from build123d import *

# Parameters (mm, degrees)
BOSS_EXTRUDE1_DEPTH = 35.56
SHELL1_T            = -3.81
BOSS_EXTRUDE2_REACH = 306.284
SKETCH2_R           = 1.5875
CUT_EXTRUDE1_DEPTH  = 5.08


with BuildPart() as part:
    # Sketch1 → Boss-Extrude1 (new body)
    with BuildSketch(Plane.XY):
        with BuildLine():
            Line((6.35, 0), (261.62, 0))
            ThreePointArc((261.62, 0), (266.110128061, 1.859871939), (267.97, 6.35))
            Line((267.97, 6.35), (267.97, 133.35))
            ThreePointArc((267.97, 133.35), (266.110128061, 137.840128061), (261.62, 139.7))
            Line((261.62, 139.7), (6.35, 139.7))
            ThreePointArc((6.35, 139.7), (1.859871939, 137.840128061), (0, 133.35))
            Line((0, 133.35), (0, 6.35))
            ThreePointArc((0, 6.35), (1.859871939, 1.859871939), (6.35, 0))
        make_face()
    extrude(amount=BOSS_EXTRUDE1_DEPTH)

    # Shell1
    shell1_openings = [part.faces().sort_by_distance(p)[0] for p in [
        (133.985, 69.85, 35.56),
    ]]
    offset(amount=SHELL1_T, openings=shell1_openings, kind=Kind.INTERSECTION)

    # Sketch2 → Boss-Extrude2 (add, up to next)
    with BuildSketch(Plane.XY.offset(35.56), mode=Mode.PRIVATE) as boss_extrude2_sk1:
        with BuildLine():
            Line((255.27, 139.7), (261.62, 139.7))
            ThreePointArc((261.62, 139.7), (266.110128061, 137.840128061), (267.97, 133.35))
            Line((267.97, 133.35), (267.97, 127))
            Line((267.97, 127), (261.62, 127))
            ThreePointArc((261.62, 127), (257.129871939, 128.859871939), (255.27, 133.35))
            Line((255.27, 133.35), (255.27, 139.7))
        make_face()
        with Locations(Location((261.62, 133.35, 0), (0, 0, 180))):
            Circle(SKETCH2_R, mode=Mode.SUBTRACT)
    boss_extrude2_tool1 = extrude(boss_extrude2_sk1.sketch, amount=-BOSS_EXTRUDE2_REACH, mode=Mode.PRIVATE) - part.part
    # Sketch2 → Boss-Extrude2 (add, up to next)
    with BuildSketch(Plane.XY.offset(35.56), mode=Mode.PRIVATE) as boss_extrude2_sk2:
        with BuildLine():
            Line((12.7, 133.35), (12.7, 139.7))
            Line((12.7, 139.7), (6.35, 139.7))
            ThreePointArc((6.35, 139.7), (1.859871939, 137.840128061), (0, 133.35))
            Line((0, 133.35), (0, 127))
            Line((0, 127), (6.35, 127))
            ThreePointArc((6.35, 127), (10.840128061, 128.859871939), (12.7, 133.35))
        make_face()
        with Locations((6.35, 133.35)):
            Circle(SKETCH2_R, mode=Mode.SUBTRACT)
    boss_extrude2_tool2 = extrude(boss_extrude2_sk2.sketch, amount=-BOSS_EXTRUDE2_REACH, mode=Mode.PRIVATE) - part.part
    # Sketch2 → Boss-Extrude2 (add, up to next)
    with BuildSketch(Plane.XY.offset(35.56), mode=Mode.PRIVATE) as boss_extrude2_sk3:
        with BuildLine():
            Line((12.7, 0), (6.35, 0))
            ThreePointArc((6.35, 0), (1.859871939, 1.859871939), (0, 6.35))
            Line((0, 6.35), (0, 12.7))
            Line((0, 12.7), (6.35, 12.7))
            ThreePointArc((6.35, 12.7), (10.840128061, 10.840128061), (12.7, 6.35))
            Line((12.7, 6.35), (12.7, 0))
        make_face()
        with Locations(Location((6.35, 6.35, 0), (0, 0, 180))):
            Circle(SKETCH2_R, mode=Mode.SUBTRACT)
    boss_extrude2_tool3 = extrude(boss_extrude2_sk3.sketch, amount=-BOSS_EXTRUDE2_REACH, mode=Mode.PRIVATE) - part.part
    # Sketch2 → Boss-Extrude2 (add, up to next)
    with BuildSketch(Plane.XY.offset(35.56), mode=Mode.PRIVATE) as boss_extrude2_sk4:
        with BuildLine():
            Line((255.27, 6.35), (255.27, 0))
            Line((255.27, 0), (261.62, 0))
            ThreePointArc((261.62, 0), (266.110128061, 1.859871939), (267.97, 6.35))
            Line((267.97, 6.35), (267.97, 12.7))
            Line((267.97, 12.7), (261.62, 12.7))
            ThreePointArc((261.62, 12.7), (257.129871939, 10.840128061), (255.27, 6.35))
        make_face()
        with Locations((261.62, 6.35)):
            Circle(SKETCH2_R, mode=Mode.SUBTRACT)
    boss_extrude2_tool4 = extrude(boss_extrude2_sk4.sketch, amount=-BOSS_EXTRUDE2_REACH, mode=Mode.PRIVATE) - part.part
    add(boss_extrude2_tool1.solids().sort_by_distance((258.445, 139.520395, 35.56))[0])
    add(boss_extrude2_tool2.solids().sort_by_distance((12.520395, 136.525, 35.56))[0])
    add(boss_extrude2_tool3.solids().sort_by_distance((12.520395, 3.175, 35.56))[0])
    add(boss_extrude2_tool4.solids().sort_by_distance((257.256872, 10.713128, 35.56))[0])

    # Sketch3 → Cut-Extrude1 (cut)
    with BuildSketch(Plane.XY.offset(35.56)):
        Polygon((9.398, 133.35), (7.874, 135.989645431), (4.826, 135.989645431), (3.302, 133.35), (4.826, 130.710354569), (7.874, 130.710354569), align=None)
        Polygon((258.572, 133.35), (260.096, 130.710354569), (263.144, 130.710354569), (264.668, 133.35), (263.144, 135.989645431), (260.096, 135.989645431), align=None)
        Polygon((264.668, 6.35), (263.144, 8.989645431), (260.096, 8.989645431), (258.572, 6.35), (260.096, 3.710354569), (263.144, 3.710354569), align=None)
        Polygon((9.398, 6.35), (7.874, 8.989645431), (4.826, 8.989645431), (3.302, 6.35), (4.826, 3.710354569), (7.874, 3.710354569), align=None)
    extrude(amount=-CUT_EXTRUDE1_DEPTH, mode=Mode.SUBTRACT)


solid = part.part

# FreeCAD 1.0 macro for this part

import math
import FreeCAD as App
import Part
import Sketcher

V = App.Vector
Q = App.Units.Quantity


def faces_at(feature, points):
    """Names of the faces that lie closest to the given points."""
    faces = feature.Shape.Faces
    near = lambda p: min(range(len(faces)), key=lambda i: faces[i].distToShape(Part.Vertex(*p))[0])
    return sorted({f"Face{near(p) + 1}" for p in points})

doc = App.newDocument("Part")
body = doc.addObject("PartDesign::Body", "Body")

sketch1 = body.newObject("Sketcher::SketchObject", "Sketch")
sketch1.AttachmentSupport = (doc.getObject("XY_Plane"), [""])
sketch1.MapMode = "FlatFace"
sketch1.addGeometry(Part.LineSegment(V(6, 0, 0), V(262, 0, 0)), False)
sketch1.addGeometry(Part.ArcOfCircle(Part.Circle(V(262, 6, 0), V(0, 0, 1), 6), math.radians(-90), math.radians(0)), False)
sketch1.addGeometry(Part.LineSegment(V(268, 6, 0), V(268, 133, 0)), False)
sketch1.addGeometry(Part.ArcOfCircle(Part.Circle(V(262, 133, 0), V(0, 0, 1), 6), math.radians(0), math.radians(90)), False)
sketch1.addGeometry(Part.LineSegment(V(262, 140, 0), V(6, 140, 0)), False)
sketch1.addGeometry(Part.ArcOfCircle(Part.Circle(V(6, 133, 0), V(0, 0, 1), 6), math.radians(90), math.radians(180)), False)
sketch1.addGeometry(Part.LineSegment(V(0, 133, 0), V(0, 6, 0)), False)
sketch1.addGeometry(Part.ArcOfCircle(Part.Circle(V(6, 6, 0), V(0, 0, 1), 6), math.radians(180), math.radians(270)), False)
sketch1.addConstraint(Sketcher.Constraint("Tangent", 0, 2, 1, 1))
sketch1.addConstraint(Sketcher.Constraint("Tangent", 1, 2, 2, 1))
sketch1.addConstraint(Sketcher.Constraint("Tangent", 2, 2, 3, 1))
sketch1.addConstraint(Sketcher.Constraint("Tangent", 3, 2, 4, 1))
sketch1.addConstraint(Sketcher.Constraint("Tangent", 4, 2, 5, 1))
sketch1.addConstraint(Sketcher.Constraint("Tangent", 5, 2, 6, 1))
sketch1.addConstraint(Sketcher.Constraint("Tangent", 6, 2, 7, 1))
sketch1.addConstraint(Sketcher.Constraint("Tangent", 7, 2, 0, 1))
sketch1.addConstraint(Sketcher.Constraint("Horizontal", 0))
sketch1.addConstraint(Sketcher.Constraint("Vertical", 2))
sketch1.addConstraint(Sketcher.Constraint("Horizontal", 4))
sketch1.addConstraint(Sketcher.Constraint("Vertical", 6))
sketch1.addConstraint(Sketcher.Constraint("Equal", 1, 3))
sketch1.addConstraint(Sketcher.Constraint("Equal", 3, 5))
sketch1.addConstraint(Sketcher.Constraint("Equal", 5, 7))
sketch1.addConstraint(Sketcher.Constraint("PointOnObject", 0, 2, -1))
sketch1.addConstraint(Sketcher.Constraint("PointOnObject", 5, 2, -2))
sketch1.addConstraint(Sketcher.Constraint("DistanceY", 2, 1, 2, 2, Q("5 in")))
sketch1.addConstraint(Sketcher.Constraint("Radius", 1, Q("0.25 in")))
sketch1.addConstraint(Sketcher.Constraint("DistanceX", 0, 1, 0, 2, Q("10.05 in")))
pad1 = body.newObject("PartDesign::Pad", "Pad")
pad1.Profile = sketch1
pad1.Length = Q("1.4 in")
doc.recompute()

thickness = body.newObject("PartDesign::Thickness", "Thickness")
thickness.Base = (pad1, faces_at(pad1, [(133.985, 69.85, 35.56)]))
thickness.Value = Q("0.15 in")
thickness.Reversed = True
thickness.Join = "Intersection"

sketch2 = body.newObject("Sketcher::SketchObject", "Sketch001")
sketch2.AttachmentSupport = (doc.getObject("XY_Plane"), [""])
sketch2.MapMode = "FlatFace"
sketch2.AttachmentOffset = App.Placement(V(0, 0, 1.4 * 25.4), App.Rotation())
sketch2.addGeometry(Part.LineSegment(V(261.62, 139.7, 0), V(255.27, 139.7, 0)), False)
sketch2.addGeometry(Part.LineSegment(V(255.27, 139.7, 0), V(255.27, 133.35, 0)), False)
sketch2.addGeometry(Part.ArcOfCircle(Part.Circle(V(261.62, 133.35, 0), V(0, 0, 1), 6.35), math.radians(180), math.radians(270)), False)
sketch2.addGeometry(Part.LineSegment(V(261.62, 127, 0), V(267.97, 127, 0)), False)
sketch2.addGeometry(Part.LineSegment(V(267.97, 127, 0), V(267.97, 133.35, 0)), False)
sketch2.addGeometry(Part.ArcOfCircle(Part.Circle(V(261.62, 133.35, 0), V(0, 0, 1), 6.35), math.radians(0), math.radians(90)), False)
sketch2.addGeometry(Part.Circle(V(261.62, 133.35, 0), V(0, 0, 1), 1.5875), False)
sketch2.addConstraint(Sketcher.Constraint("Coincident", 0, 2, 1, 1))
sketch2.addConstraint(Sketcher.Constraint("Tangent", 1, 2, 2, 1))
sketch2.addConstraint(Sketcher.Constraint("Tangent", 2, 2, 3, 1))
sketch2.addConstraint(Sketcher.Constraint("Coincident", 3, 2, 4, 1))
sketch2.addConstraint(Sketcher.Constraint("Tangent", 4, 2, 5, 1))
sketch2.addConstraint(Sketcher.Constraint("Tangent", 5, 2, 0, 1))
sketch2.addConstraint(Sketcher.Constraint("Horizontal", 0))
sketch2.addConstraint(Sketcher.Constraint("Vertical", 1))
sketch2.addConstraint(Sketcher.Constraint("Horizontal", 3))
sketch2.addConstraint(Sketcher.Constraint("Vertical", 4))
sketch2.addConstraint(Sketcher.Constraint("Coincident", 5, 3, 2, 3))
sketch2.addConstraint(Sketcher.Constraint("Coincident", 6, 3, 2, 3))
sketch2.addConstraint(Sketcher.Constraint("Equal", 2, 5))
sketch2.addConstraint(Sketcher.Constraint("Radius", 2, Q("0.25 in")))
sketch2.addConstraint(Sketcher.Constraint("Diameter", 6, Q("0.125 in")))
sketch2.addConstraint(Sketcher.Constraint("DistanceY", -1, 1, 2, 2, Q("5 in")))
sketch2.addConstraint(Sketcher.Constraint("DistanceX", -1, 1, 2, 3, Q("10.3 in")))
pad2 = body.newObject("PartDesign::Pad", "Pad001")
pad2.Profile = sketch2
pad2.Type = "UpToFirst"
pad2.Reversed = True

sketch3 = body.newObject("Sketcher::SketchObject", "Sketch002")
sketch3.AttachmentSupport = (doc.getObject("XY_Plane"), [""])
sketch3.MapMode = "FlatFace"
sketch3.AttachmentOffset = App.Placement(V(0, 0, 1.4 * 25.4), App.Rotation())
sketch3.addGeometry(Part.LineSegment(V(12.7, 133.3, 0), V(12.7, 139.7, 0)), False)
sketch3.addGeometry(Part.LineSegment(V(12.7, 139.7, 0), V(6.3, 139.7, 0)), False)
sketch3.addGeometry(Part.ArcOfCircle(Part.Circle(V(6.3, 133.4, 0), V(0, 0, 1), 6.3), math.radians(90), math.radians(180)), False)
sketch3.addGeometry(Part.LineSegment(V(0, 133.3, 0), V(0, 127, 0)), False)
sketch3.addGeometry(Part.LineSegment(V(0, 127, 0), V(6.3, 127, 0)), False)
sketch3.addGeometry(Part.ArcOfCircle(Part.Circle(V(6.4, 133.3, 0), V(0, 0, 1), 6.3), math.radians(-90), math.radians(0)), False)
sketch3.addGeometry(Part.Circle(V(6.3, 133.3, 0), V(0, 0, 1), 1.6), False)
sketch3.addConstraint(Sketcher.Constraint("Coincident", 0, 2, 1, 1))
sketch3.addConstraint(Sketcher.Constraint("Tangent", 1, 2, 2, 1))
sketch3.addConstraint(Sketcher.Constraint("Tangent", 2, 2, 3, 1))
sketch3.addConstraint(Sketcher.Constraint("Coincident", 3, 2, 4, 1))
sketch3.addConstraint(Sketcher.Constraint("Tangent", 4, 2, 5, 1))
sketch3.addConstraint(Sketcher.Constraint("Tangent", 5, 2, 0, 1))
sketch3.addConstraint(Sketcher.Constraint("Vertical", 0))
sketch3.addConstraint(Sketcher.Constraint("Horizontal", 1))
sketch3.addConstraint(Sketcher.Constraint("Vertical", 3))
sketch3.addConstraint(Sketcher.Constraint("Horizontal", 4))
sketch3.addConstraint(Sketcher.Constraint("Coincident", 5, 3, 2, 3))
sketch3.addConstraint(Sketcher.Constraint("Coincident", 6, 3, 2, 3))
sketch3.addConstraint(Sketcher.Constraint("Equal", 2, 5))
sketch3.addConstraint(Sketcher.Constraint("PointOnObject", 2, 2, -2))
sketch3.addConstraint(Sketcher.Constraint("Radius", 2, Q("0.25 in")))
sketch3.addConstraint(Sketcher.Constraint("Diameter", 6, Q("0.125 in")))
sketch3.addConstraint(Sketcher.Constraint("DistanceY", -1, 1, 3, 2, Q("5 in")))
pad3 = body.newObject("PartDesign::Pad", "Pad002")
pad3.Profile = sketch3
pad3.Type = "UpToFirst"
pad3.Reversed = True

sketch4 = body.newObject("Sketcher::SketchObject", "Sketch003")
sketch4.AttachmentSupport = (doc.getObject("XY_Plane"), [""])
sketch4.MapMode = "FlatFace"
sketch4.AttachmentOffset = App.Placement(V(0, 0, 1.4 * 25.4), App.Rotation())
sketch4.addGeometry(Part.LineSegment(V(6.3, 0, 0), V(12.7, 0, 0)), False)
sketch4.addGeometry(Part.LineSegment(V(12.7, 0, 0), V(12.7, 6.3, 0)), False)
sketch4.addGeometry(Part.ArcOfCircle(Part.Circle(V(6.4, 6.4, 0), V(0, 0, 1), 6.3), math.radians(0), math.radians(90)), False)
sketch4.addGeometry(Part.LineSegment(V(6.3, 12.7, 0), V(0, 12.7, 0)), False)
sketch4.addGeometry(Part.LineSegment(V(0, 12.7, 0), V(0, 6.3, 0)), False)
sketch4.addGeometry(Part.ArcOfCircle(Part.Circle(V(6.3, 6.3, 0), V(0, 0, 1), 6.3), math.radians(180), math.radians(270)), False)
sketch4.addGeometry(Part.Circle(V(6.3, 6.3, 0), V(0, 0, 1), 1.6), False)
sketch4.addConstraint(Sketcher.Constraint("Coincident", 0, 2, 1, 1))
sketch4.addConstraint(Sketcher.Constraint("Tangent", 1, 2, 2, 1))
sketch4.addConstraint(Sketcher.Constraint("Tangent", 2, 2, 3, 1))
sketch4.addConstraint(Sketcher.Constraint("Coincident", 3, 2, 4, 1))
sketch4.addConstraint(Sketcher.Constraint("Tangent", 4, 2, 5, 1))
sketch4.addConstraint(Sketcher.Constraint("Tangent", 5, 2, 0, 1))
sketch4.addConstraint(Sketcher.Constraint("Horizontal", 0))
sketch4.addConstraint(Sketcher.Constraint("Vertical", 1))
sketch4.addConstraint(Sketcher.Constraint("Horizontal", 3))
sketch4.addConstraint(Sketcher.Constraint("Vertical", 4))
sketch4.addConstraint(Sketcher.Constraint("Coincident", 5, 3, 2, 3))
sketch4.addConstraint(Sketcher.Constraint("Coincident", 6, 3, 2, 3))
sketch4.addConstraint(Sketcher.Constraint("Equal", 2, 5))
sketch4.addConstraint(Sketcher.Constraint("PointOnObject", 0, 2, -1))
sketch4.addConstraint(Sketcher.Constraint("PointOnObject", 3, 2, -2))
sketch4.addConstraint(Sketcher.Constraint("Radius", 2, Q("0.25 in")))
sketch4.addConstraint(Sketcher.Constraint("Diameter", 6, Q("0.125 in")))
pad4 = body.newObject("PartDesign::Pad", "Pad003")
pad4.Profile = sketch4
pad4.Type = "UpToFirst"
pad4.Reversed = True

sketch5 = body.newObject("Sketcher::SketchObject", "Sketch004")
sketch5.AttachmentSupport = (doc.getObject("XY_Plane"), [""])
sketch5.MapMode = "FlatFace"
sketch5.AttachmentOffset = App.Placement(V(0, 0, 1.4 * 25.4), App.Rotation())
sketch5.addGeometry(Part.LineSegment(V(255.3, 6.3, 0), V(255.3, 0, 0)), False)
sketch5.addGeometry(Part.LineSegment(V(255.3, 0, 0), V(261.6, 0, 0)), False)
sketch5.addGeometry(Part.ArcOfCircle(Part.Circle(V(261.6, 6.3, 0), V(0, 0, 1), 6.3), math.radians(-90), math.radians(0)), False)
sketch5.addGeometry(Part.LineSegment(V(268, 6.3, 0), V(268, 12.7, 0)), False)
sketch5.addGeometry(Part.LineSegment(V(268, 12.7, 0), V(261.6, 12.7, 0)), False)
sketch5.addGeometry(Part.ArcOfCircle(Part.Circle(V(261.6, 6.4, 0), V(0, 0, 1), 6.3), math.radians(90), math.radians(180)), False)
sketch5.addGeometry(Part.Circle(V(261.6, 6.3, 0), V(0, 0, 1), 1.6), False)
sketch5.addConstraint(Sketcher.Constraint("Coincident", 0, 2, 1, 1))
sketch5.addConstraint(Sketcher.Constraint("Tangent", 1, 2, 2, 1))
sketch5.addConstraint(Sketcher.Constraint("Tangent", 2, 2, 3, 1))
sketch5.addConstraint(Sketcher.Constraint("Coincident", 3, 2, 4, 1))
sketch5.addConstraint(Sketcher.Constraint("Tangent", 4, 2, 5, 1))
sketch5.addConstraint(Sketcher.Constraint("Tangent", 5, 2, 0, 1))
sketch5.addConstraint(Sketcher.Constraint("Vertical", 0))
sketch5.addConstraint(Sketcher.Constraint("Horizontal", 1))
sketch5.addConstraint(Sketcher.Constraint("Vertical", 3))
sketch5.addConstraint(Sketcher.Constraint("Horizontal", 4))
sketch5.addConstraint(Sketcher.Constraint("Coincident", 5, 3, 2, 3))
sketch5.addConstraint(Sketcher.Constraint("Coincident", 6, 3, 2, 3))
sketch5.addConstraint(Sketcher.Constraint("Equal", 2, 5))
sketch5.addConstraint(Sketcher.Constraint("PointOnObject", 0, 2, -1))
sketch5.addConstraint(Sketcher.Constraint("Radius", 2, Q("0.25 in")))
sketch5.addConstraint(Sketcher.Constraint("Diameter", 6, Q("0.125 in")))
sketch5.addConstraint(Sketcher.Constraint("DistanceX", -1, 1, 2, 3, Q("10.3 in")))
pad5 = body.newObject("PartDesign::Pad", "Pad004")
pad5.Profile = sketch5
pad5.Type = "UpToFirst"
pad5.Reversed = True

sketch6 = body.newObject("Sketcher::SketchObject", "Sketch005")
sketch6.AttachmentSupport = (doc.getObject("XY_Plane"), [""])
sketch6.MapMode = "FlatFace"
sketch6.AttachmentOffset = App.Placement(V(0, 0, 1.4 * 25.4), App.Rotation())
sketch6.addGeometry(Part.LineSegment(V(9.4, 133.3, 0), V(7.9, 136, 0)), False)
sketch6.addGeometry(Part.LineSegment(V(7.9, 136, 0), V(4.8, 136, 0)), False)
sketch6.addGeometry(Part.LineSegment(V(4.8, 136, 0), V(3.3, 133.3, 0)), False)
sketch6.addGeometry(Part.LineSegment(V(3.3, 133.3, 0), V(4.8, 130.7, 0)), False)
sketch6.addGeometry(Part.LineSegment(V(4.8, 130.7, 0), V(7.9, 130.7, 0)), False)
sketch6.addGeometry(Part.LineSegment(V(7.9, 130.7, 0), V(9.4, 133.3, 0)), False)
sketch6.addGeometry(Part.LineSegment(V(258.6, 133.3, 0), V(260.1, 130.7, 0)), False)
sketch6.addGeometry(Part.LineSegment(V(260.1, 130.7, 0), V(263.1, 130.7, 0)), False)
sketch6.addGeometry(Part.LineSegment(V(263.1, 130.7, 0), V(264.7, 133.3, 0)), False)
sketch6.addGeometry(Part.LineSegment(V(264.7, 133.3, 0), V(263.1, 136, 0)), False)
sketch6.addGeometry(Part.LineSegment(V(263.1, 136, 0), V(260.1, 136, 0)), False)
sketch6.addGeometry(Part.LineSegment(V(260.1, 136, 0), V(258.6, 133.3, 0)), False)
sketch6.addGeometry(Part.LineSegment(V(264.7, 6.3, 0), V(263.1, 9, 0)), False)
sketch6.addGeometry(Part.LineSegment(V(263.1, 9, 0), V(260.1, 9, 0)), False)
sketch6.addGeometry(Part.LineSegment(V(260.1, 9, 0), V(258.6, 6.3, 0)), False)
sketch6.addGeometry(Part.LineSegment(V(258.6, 6.3, 0), V(260.1, 3.7, 0)), False)
sketch6.addGeometry(Part.LineSegment(V(260.1, 3.7, 0), V(263.1, 3.7, 0)), False)
sketch6.addGeometry(Part.LineSegment(V(263.1, 3.7, 0), V(264.7, 6.3, 0)), False)
sketch6.addGeometry(Part.LineSegment(V(9.4, 6.3, 0), V(7.9, 9, 0)), False)
sketch6.addGeometry(Part.LineSegment(V(7.9, 9, 0), V(4.8, 9, 0)), False)
sketch6.addGeometry(Part.LineSegment(V(4.8, 9, 0), V(3.3, 6.3, 0)), False)
sketch6.addGeometry(Part.LineSegment(V(3.3, 6.3, 0), V(4.8, 3.7, 0)), False)
sketch6.addGeometry(Part.LineSegment(V(4.8, 3.7, 0), V(7.9, 3.7, 0)), False)
sketch6.addGeometry(Part.LineSegment(V(7.9, 3.7, 0), V(9.4, 6.3, 0)), False)
sketch6.addConstraint(Sketcher.Constraint("Coincident", 0, 2, 1, 1))
sketch6.addConstraint(Sketcher.Constraint("Coincident", 1, 2, 2, 1))
sketch6.addConstraint(Sketcher.Constraint("Coincident", 2, 2, 3, 1))
sketch6.addConstraint(Sketcher.Constraint("Coincident", 3, 2, 4, 1))
sketch6.addConstraint(Sketcher.Constraint("Coincident", 4, 2, 5, 1))
sketch6.addConstraint(Sketcher.Constraint("Coincident", 5, 2, 0, 1))
sketch6.addConstraint(Sketcher.Constraint("Coincident", 6, 2, 7, 1))
sketch6.addConstraint(Sketcher.Constraint("Coincident", 7, 2, 8, 1))
sketch6.addConstraint(Sketcher.Constraint("Coincident", 8, 2, 9, 1))
sketch6.addConstraint(Sketcher.Constraint("Coincident", 9, 2, 10, 1))
sketch6.addConstraint(Sketcher.Constraint("Coincident", 10, 2, 11, 1))
sketch6.addConstraint(Sketcher.Constraint("Coincident", 11, 2, 6, 1))
sketch6.addConstraint(Sketcher.Constraint("Coincident", 12, 2, 13, 1))
sketch6.addConstraint(Sketcher.Constraint("Coincident", 13, 2, 14, 1))
sketch6.addConstraint(Sketcher.Constraint("Coincident", 14, 2, 15, 1))
sketch6.addConstraint(Sketcher.Constraint("Coincident", 15, 2, 16, 1))
sketch6.addConstraint(Sketcher.Constraint("Coincident", 16, 2, 17, 1))
sketch6.addConstraint(Sketcher.Constraint("Coincident", 17, 2, 12, 1))
sketch6.addConstraint(Sketcher.Constraint("Coincident", 18, 2, 19, 1))
sketch6.addConstraint(Sketcher.Constraint("Coincident", 19, 2, 20, 1))
sketch6.addConstraint(Sketcher.Constraint("Coincident", 20, 2, 21, 1))
sketch6.addConstraint(Sketcher.Constraint("Coincident", 21, 2, 22, 1))
sketch6.addConstraint(Sketcher.Constraint("Coincident", 22, 2, 23, 1))
sketch6.addConstraint(Sketcher.Constraint("Coincident", 23, 2, 18, 1))
sketch6.addConstraint(Sketcher.Constraint("Horizontal", 1))
sketch6.addConstraint(Sketcher.Constraint("Horizontal", 4))
sketch6.addConstraint(Sketcher.Constraint("Horizontal", 7))
sketch6.addConstraint(Sketcher.Constraint("Horizontal", 10))
sketch6.addConstraint(Sketcher.Constraint("Horizontal", 13))
sketch6.addConstraint(Sketcher.Constraint("Horizontal", 16))
sketch6.addConstraint(Sketcher.Constraint("Horizontal", 19))
sketch6.addConstraint(Sketcher.Constraint("Horizontal", 22))
sketch6.addConstraint(Sketcher.Constraint("Parallel", 0, 3))
sketch6.addConstraint(Sketcher.Constraint("Parallel", 2, 5))
sketch6.addConstraint(Sketcher.Constraint("Parallel", 3, 6))
sketch6.addConstraint(Sketcher.Constraint("Parallel", 5, 8))
sketch6.addConstraint(Sketcher.Constraint("Parallel", 6, 9))
sketch6.addConstraint(Sketcher.Constraint("Parallel", 8, 11))
sketch6.addConstraint(Sketcher.Constraint("Parallel", 9, 12))
sketch6.addConstraint(Sketcher.Constraint("Parallel", 11, 14))
sketch6.addConstraint(Sketcher.Constraint("Parallel", 12, 15))
sketch6.addConstraint(Sketcher.Constraint("Parallel", 14, 17))
sketch6.addConstraint(Sketcher.Constraint("Parallel", 15, 18))
sketch6.addConstraint(Sketcher.Constraint("Parallel", 17, 20))
sketch6.addConstraint(Sketcher.Constraint("Parallel", 18, 21))
sketch6.addConstraint(Sketcher.Constraint("Parallel", 20, 23))
sketch6.addConstraint(Sketcher.Constraint("Horizontal", 2, 2, 5, 2))
sketch6.addConstraint(Sketcher.Constraint("Horizontal", 4, 2, 6, 2))
sketch6.addConstraint(Sketcher.Constraint("Horizontal", 5, 2, 8, 2))
sketch6.addConstraint(Sketcher.Constraint("Horizontal", 1, 2, 9, 2))
sketch6.addConstraint(Sketcher.Constraint("Horizontal", 8, 2, 11, 2))
sketch6.addConstraint(Sketcher.Constraint("Horizontal", 14, 2, 17, 2))
sketch6.addConstraint(Sketcher.Constraint("Horizontal", 13, 2, 18, 2))
sketch6.addConstraint(Sketcher.Constraint("Horizontal", 17, 2, 20, 2))
sketch6.addConstraint(Sketcher.Constraint("Horizontal", 16, 2, 21, 2))
sketch6.addConstraint(Sketcher.Constraint("Horizontal", 20, 2, 23, 2))
sketch6.addConstraint(Sketcher.Constraint("Vertical", 1, 2, 3, 2))
sketch6.addConstraint(Sketcher.Constraint("Vertical", 0, 2, 4, 2))
sketch6.addConstraint(Sketcher.Constraint("Vertical", 9, 2, 12, 2))
sketch6.addConstraint(Sketcher.Constraint("Vertical", 10, 2, 13, 2))
sketch6.addConstraint(Sketcher.Constraint("Vertical", 11, 2, 14, 2))
sketch6.addConstraint(Sketcher.Constraint("Vertical", 13, 2, 15, 2))
sketch6.addConstraint(Sketcher.Constraint("Vertical", 4, 2, 18, 2))
sketch6.addConstraint(Sketcher.Constraint("Vertical", 3, 2, 19, 2))
sketch6.addConstraint(Sketcher.Constraint("Equal", 4, 7))
sketch6.addConstraint(Sketcher.Constraint("Angle", 0, Q("120 deg")))
sketch6.addConstraint(Sketcher.Constraint("DistanceY", 12, 2, 9, 2, Q("5 in")))
sketch6.addConstraint(Sketcher.Constraint("DistanceX", 1, 2, 1, 1, Q("0.12 in")))
sketch6.addConstraint(Sketcher.Constraint("Distance", 0, Q("0.12 in")))
sketch6.addConstraint(Sketcher.Constraint("DistanceX", -1, 1, 0, 2, Q("0.31 in")))
sketch6.addConstraint(Sketcher.Constraint("DistanceY", -1, 1, 2, 2, Q("5.25 in")))
sketch6.addConstraint(Sketcher.Constraint("DistanceX", -1, 1, 6, 2, Q("10.24 in")))
pocket1 = body.newObject("PartDesign::Pocket", "Pocket")
pocket1.Profile = sketch6
pocket1.Length = Q("0.2 in")

doc.recompute()
